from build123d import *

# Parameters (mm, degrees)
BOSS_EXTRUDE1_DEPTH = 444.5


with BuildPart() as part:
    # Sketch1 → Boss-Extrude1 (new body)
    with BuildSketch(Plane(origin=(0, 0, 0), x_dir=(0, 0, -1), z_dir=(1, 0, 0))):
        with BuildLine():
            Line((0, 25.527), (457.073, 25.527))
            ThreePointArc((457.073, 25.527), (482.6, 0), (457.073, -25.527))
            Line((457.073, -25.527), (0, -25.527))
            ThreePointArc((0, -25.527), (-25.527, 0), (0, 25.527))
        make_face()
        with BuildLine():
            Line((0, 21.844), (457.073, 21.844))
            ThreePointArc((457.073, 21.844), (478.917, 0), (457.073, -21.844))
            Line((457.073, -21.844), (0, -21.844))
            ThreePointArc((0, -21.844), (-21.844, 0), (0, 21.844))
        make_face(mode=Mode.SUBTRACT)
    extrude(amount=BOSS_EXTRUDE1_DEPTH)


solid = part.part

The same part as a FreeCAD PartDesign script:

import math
import FreeCAD as App
import Part
import Sketcher
from FreeCAD import Vector
Q = App.Units.Quantity

doc = App.newDocument("Part")
body = doc.addObject("PartDesign::Body", "Body")

# Sketch on YZ plane
sketch1 = body.newObject("Sketcher::SketchObject", "Sketch")
sketch1.AttachmentSupport = (doc.getObject("YZ_Plane"), [""])
sketch1.MapMode = "FlatFace"
sketch1.addGeometry(Part.LineSegment(Vector(26, -457, 0), Vector(26, 0, 0)), False)
sketch1.addGeometry(Part.ArcOfCircle(Part.Circle(Vector(0, 0, 0), Vector(0, 0, 1), 26), math.radians(0), math.radians(180)), False)
sketch1.addGeometry(Part.LineSegment(Vector(-26, 0, 0), Vector(-26, -457, 0)), False)
sketch1.addGeometry(Part.ArcOfCircle(Part.Circle(Vector(0, -457, 0), Vector(0, 0, 1), 26), math.radians(180), math.radians(360)), False)
sketch1.addGeometry(Part.LineSegment(Vector(22, 0, 0), Vector(22, -457, 0)), False)
sketch1.addGeometry(Part.ArcOfCircle(Part.Circle(Vector(0, -457, 0), Vector(0, 0, 1), 22), math.radians(180), math.radians(360)), False)
sketch1.addGeometry(Part.LineSegment(Vector(-22, -457, 0), Vector(-22, 0, 0)), False)
sketch1.addGeometry(Part.ArcOfCircle(Part.Circle(Vector(0, 0, 0), Vector(0, 0, 1), 22), math.radians(0), math.radians(180)), False)
sketch1.addConstraint(Sketcher.Constraint("Tangent", 0, 2, 1, 1))
sketch1.addConstraint(Sketcher.Constraint("Tangent", 1, 2, 2, 1))
sketch1.addConstraint(Sketcher.Constraint("Tangent", 2, 2, 3, 1))
sketch1.addConstraint(Sketcher.Constraint("Tangent", 3, 2, 0, 1))
sketch1.addConstraint(Sketcher.Constraint("Tangent", 4, 2, 5, 2))
sketch1.addConstraint(Sketcher.Constraint("Tangent", 5, 1, 6, 1))
sketch1.addConstraint(Sketcher.Constraint("Tangent", 6, 2, 7, 2))
sketch1.addConstraint(Sketcher.Constraint("Tangent", 7, 1, 4, 1))
sketch1.addConstraint(Sketcher.Constraint("Vertical", 0))
sketch1.addConstraint(Sketcher.Constraint("Vertical", 2))
sketch1.addConstraint(Sketcher.Constraint("Vertical", 4))
sketch1.addConstraint(Sketcher.Constraint("Vertical", 6))
sketch1.addConstraint(Sketcher.Constraint("Coincident", 1, 3, -1, 1))
sketch1.addConstraint(Sketcher.Constraint("Coincident", 7, 3, -1, 1))
sketch1.addConstraint(Sketcher.Constraint("Horizontal", 5, 3, 2, 2))
sketch1.addConstraint(Sketcher.Constraint("Radius", 5, Q("0.86 in")))
sketch1.addConstraint(Sketcher.Constraint("Radius", 1, Q("1.005 in")))
sketch1.addConstraint(Sketcher.Constraint("DistanceY", 0, 1, 0, 2, Q("17.995 in")))
pad1 = body.newObject("PartDesign::Pad", "Pad")
pad1.Profile = sketch1
pad1.Length = Q("17.5 in")

doc.recompute()
